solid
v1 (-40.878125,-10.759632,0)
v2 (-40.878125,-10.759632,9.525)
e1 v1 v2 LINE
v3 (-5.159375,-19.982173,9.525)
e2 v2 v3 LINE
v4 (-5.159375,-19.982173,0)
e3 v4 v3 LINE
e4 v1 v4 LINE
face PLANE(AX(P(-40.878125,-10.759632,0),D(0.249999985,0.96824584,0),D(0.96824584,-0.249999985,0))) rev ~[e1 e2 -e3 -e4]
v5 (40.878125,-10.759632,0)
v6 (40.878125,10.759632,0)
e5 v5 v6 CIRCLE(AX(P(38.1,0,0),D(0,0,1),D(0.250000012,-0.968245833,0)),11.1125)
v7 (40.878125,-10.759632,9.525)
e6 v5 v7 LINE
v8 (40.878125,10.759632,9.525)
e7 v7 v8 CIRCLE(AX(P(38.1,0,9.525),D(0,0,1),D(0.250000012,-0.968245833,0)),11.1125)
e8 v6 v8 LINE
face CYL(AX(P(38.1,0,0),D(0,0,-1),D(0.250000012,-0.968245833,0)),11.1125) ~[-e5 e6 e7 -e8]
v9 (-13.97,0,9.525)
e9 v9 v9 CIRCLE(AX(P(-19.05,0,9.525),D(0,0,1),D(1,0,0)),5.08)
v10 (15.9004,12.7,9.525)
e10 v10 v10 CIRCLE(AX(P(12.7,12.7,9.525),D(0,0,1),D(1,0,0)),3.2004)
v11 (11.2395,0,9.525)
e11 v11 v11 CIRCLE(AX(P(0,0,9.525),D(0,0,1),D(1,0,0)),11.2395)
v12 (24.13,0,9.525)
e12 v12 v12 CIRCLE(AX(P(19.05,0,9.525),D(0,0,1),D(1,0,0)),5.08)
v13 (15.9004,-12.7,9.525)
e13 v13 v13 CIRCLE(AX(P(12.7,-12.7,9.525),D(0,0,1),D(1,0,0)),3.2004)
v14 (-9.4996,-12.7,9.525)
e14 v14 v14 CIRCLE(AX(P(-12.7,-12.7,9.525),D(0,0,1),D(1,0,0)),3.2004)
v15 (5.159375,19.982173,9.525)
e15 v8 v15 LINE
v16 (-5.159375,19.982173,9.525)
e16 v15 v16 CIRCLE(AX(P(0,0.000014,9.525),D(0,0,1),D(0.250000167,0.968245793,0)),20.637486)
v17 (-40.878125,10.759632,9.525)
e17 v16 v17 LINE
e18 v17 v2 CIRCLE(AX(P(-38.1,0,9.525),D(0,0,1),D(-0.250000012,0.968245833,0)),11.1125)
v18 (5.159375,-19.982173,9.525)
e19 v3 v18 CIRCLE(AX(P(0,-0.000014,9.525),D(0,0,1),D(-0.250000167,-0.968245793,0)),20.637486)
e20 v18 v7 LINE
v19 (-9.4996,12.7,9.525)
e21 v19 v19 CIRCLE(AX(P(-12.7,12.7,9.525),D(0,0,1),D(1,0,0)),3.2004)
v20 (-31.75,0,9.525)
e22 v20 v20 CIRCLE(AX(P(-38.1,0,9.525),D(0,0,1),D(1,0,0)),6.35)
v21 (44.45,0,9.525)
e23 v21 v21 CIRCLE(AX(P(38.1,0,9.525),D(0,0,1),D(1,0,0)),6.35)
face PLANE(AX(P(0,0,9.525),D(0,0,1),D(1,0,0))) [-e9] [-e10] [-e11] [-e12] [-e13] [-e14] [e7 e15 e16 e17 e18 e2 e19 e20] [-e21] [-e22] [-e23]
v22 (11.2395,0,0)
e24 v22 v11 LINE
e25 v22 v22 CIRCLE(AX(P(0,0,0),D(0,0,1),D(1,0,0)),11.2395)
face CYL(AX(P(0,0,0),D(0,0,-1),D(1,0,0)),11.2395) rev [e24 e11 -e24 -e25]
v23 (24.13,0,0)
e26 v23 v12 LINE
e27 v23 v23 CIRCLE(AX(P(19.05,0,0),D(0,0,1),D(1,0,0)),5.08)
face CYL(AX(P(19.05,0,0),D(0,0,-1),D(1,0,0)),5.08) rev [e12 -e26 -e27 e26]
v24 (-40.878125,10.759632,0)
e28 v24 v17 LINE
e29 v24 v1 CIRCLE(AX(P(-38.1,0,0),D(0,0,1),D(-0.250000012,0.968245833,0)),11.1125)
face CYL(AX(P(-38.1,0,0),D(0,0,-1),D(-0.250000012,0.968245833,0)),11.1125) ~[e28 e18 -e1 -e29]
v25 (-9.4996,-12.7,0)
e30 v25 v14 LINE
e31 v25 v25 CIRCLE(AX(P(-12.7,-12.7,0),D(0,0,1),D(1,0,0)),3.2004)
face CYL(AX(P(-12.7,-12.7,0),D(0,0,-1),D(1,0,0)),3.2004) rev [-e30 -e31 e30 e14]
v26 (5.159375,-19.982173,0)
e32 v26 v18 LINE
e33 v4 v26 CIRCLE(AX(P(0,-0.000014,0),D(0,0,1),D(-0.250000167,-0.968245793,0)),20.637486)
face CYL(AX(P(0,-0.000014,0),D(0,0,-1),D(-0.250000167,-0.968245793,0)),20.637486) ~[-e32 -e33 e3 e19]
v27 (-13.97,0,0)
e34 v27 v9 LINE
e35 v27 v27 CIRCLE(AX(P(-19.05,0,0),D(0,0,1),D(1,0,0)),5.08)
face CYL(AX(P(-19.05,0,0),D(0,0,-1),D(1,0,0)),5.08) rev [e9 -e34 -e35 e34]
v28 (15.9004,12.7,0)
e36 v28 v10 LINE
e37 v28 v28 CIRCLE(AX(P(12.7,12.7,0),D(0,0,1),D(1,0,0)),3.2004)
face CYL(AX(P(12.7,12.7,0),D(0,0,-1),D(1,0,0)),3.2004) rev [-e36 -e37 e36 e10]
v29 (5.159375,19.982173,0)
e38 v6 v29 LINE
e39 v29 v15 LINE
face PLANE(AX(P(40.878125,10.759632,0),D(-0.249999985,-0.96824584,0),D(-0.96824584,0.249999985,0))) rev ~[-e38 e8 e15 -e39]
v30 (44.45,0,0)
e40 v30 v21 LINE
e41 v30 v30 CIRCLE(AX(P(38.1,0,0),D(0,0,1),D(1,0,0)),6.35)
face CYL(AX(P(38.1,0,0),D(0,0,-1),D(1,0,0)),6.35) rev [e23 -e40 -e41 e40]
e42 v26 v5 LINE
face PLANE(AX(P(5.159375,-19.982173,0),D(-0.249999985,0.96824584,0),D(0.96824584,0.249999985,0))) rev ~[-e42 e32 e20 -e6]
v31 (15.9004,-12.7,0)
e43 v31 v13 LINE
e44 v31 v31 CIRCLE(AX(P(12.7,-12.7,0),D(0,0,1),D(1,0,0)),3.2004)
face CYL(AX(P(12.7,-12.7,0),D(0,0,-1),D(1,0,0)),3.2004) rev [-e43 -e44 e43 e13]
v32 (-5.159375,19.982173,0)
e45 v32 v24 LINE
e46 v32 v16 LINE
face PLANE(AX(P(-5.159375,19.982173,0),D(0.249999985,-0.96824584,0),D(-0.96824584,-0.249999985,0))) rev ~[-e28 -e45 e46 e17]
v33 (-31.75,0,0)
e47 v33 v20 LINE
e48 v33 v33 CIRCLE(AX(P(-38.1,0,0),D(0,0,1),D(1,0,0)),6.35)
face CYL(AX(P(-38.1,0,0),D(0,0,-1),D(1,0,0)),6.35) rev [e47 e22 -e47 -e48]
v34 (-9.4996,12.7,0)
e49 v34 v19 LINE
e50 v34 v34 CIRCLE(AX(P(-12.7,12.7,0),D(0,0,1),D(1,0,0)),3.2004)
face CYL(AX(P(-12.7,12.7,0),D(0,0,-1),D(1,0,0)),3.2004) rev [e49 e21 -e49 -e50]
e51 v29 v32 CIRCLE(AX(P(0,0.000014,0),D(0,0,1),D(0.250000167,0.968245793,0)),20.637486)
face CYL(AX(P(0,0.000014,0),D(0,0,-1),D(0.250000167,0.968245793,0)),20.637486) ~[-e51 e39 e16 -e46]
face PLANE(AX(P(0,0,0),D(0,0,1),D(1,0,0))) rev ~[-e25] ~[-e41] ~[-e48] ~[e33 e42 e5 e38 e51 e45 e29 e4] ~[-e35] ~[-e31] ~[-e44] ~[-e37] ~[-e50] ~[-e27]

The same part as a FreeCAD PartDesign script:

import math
import FreeCAD as App
import Part
import Sketcher
Q = App.Units.Quantity

doc = App.newDocument("Part")
params = doc.addObject("Spreadsheet::Sheet", "Params")
for row, (alias, value) in enumerate([
    ("sketch1_diameter", "0.5 in"),
    ("sketch1_diameter2", "0.4 in"),
    ("sketch1_diameter3", "0.252 in"),
    ("sketch1_diameter4", "0.885 in"),
    ("sketch1_radius", "0.4375 in"),
    ("pad1_length", "0.375 in"),
], start=1):
    params.set(f"A{row}", alias)
    params.set(f"B{row}", "=" + value)
    params.setAlias(f"B{row}", alias)

body = doc.addObject("PartDesign::Body", "Body")

# Sketch on XY plane
sketch1 = doc.addObject("Sketcher::SketchObject", "Sketch")
body.addObject(sketch1)
sketch1.AttachmentSupport = (doc.XY_Plane, [""])
sketch1.MapMode = "FlatFace"
sketch1.addGeometry([
    Part.LineSegment(App.Vector(-5.159375, 19.982173, 0), App.Vector(-40.878125, 10.759632, 0)),  # 0
    Part.ArcOfCircle(Part.Circle(App.Vector(-38.1, 0, 0), App.Vector(0, 0, 1), 11.1125), math.radians(104.477513), math.radians(255.522487)),  # 1
    Part.LineSegment(App.Vector(-40.878125, -10.759632, 0), App.Vector(-5.159375, -19.982173, 0)),  # 2
    Part.ArcOfCircle(Part.Circle(App.Vector(0, -0.000014, 0), App.Vector(0, 0, 1), 20.637486), math.radians(-104.477522), math.radians(-75.522478)),  # 3
    Part.LineSegment(App.Vector(5.159375, -19.982173, 0), App.Vector(40.878125, -10.759632, 0)),  # 4
    Part.ArcOfCircle(Part.Circle(App.Vector(38.1, 0, 0), App.Vector(0, 0, 1), 11.1125), math.radians(-75.522487), math.radians(75.522487)),  # 5
    Part.LineSegment(App.Vector(40.878125, 10.759632, 0), App.Vector(5.159375, 19.982173, 0)),  # 6
    Part.ArcOfCircle(Part.Circle(App.Vector(0, 0.000014, 0), App.Vector(0, 0, 1), 20.637486), math.radians(75.522478), math.radians(104.477522)),  # 7
    Part.Circle(App.Vector(-12.7, -12.7, 0), App.Vector(0, 0, 1), 3.2004),  # 8
    Part.Circle(App.Vector(12.7, -12.7, 0), App.Vector(0, 0, 1), 3.2004),  # 9
    Part.Circle(App.Vector(-38.1, 0, 0), App.Vector(0, 0, 1), 6.35),  # 10
    Part.Circle(App.Vector(-19.05, 0, 0), App.Vector(0, 0, 1), 5.08),  # 11
    Part.Circle(App.Vector(-12.7, 12.7, 0), App.Vector(0, 0, 1), 3.2004),  # 12
    Part.Circle(App.Vector(0, 0, 0), App.Vector(0, 0, 1), 11.2395),  # 13
    Part.Circle(App.Vector(19.05, 0, 0), App.Vector(0, 0, 1), 5.08),  # 14
    Part.Circle(App.Vector(38.1, 0, 0), App.Vector(0, 0, 1), 6.35),  # 15
    Part.Circle(App.Vector(12.7, 12.7, 0), App.Vector(0, 0, 1), 3.2004),  # 16
], False)
sketch1.addConstraint([
    Sketcher.Constraint("Tangent", 0, 2, 1, 1),
    Sketcher.Constraint("Tangent", 1, 2, 2, 1),
    Sketcher.Constraint("Tangent", 2, 2, 3, 1),
    Sketcher.Constraint("Tangent", 3, 2, 4, 1),
    Sketcher.Constraint("Tangent", 4, 2, 5, 1),
    Sketcher.Constraint("Tangent", 5, 2, 6, 1),
    Sketcher.Constraint("Tangent", 6, 2, 7, 1),
    Sketcher.Constraint("Tangent", 7, 2, 0, 1),
    Sketcher.Constraint("Coincident", 13, 3, -1, 1),
    Sketcher.Constraint("Coincident", 10, 3, 1, 3),
    Sketcher.Constraint("Coincident", 15, 3, 5, 3),
    Sketcher.Constraint("Equal", 1, 5),
    Sketcher.Constraint("Equal", 3, 7),
    Sketcher.Constraint("Equal", 8, 9),
    Sketcher.Constraint("Equal", 9, 12),
    Sketcher.Constraint("Equal", 11, 14),
    Sketcher.Constraint("Equal", 10, 15),
    Sketcher.Constraint("Equal", 12, 16),
    Sketcher.Constraint("Symmetric", 1, 3, 5, 3, -1, 1),
    Sketcher.Constraint("Symmetric", 3, 3, 7, 3, -1, 1),
    Sketcher.Constraint("Symmetric", 9, 3, 12, 3, -1, 1),
    Sketcher.Constraint("Symmetric", 11, 3, 14, 3, -1, 1),
    Sketcher.Constraint("Symmetric", 8, 3, 16, 3, -1, 1),
    Sketcher.Constraint("Symmetric", 8, 3, 9, 3, -2),
    Sketcher.Constraint("Symmetric", 2, 2, 3, 2, -2),
    Sketcher.Constraint("PointOnObject", 11, 3, -1),
    Sketcher.Constraint("Diameter", 10, Q("0.5 in")),
    Sketcher.Constraint("Diameter", 11, Q("0.4 in")),
    Sketcher.Constraint("Diameter", 8, Q("0.252 in")),
    Sketcher.Constraint("Diameter", 13, Q("0.885 in")),
    Sketcher.Constraint("Radius", 1, Q("0.4375 in")),
    Sketcher.Constraint("DistanceX", 1, 3, 5, 3, Q("3 in")),
    Sketcher.Constraint("DistanceX", 1, 3, 8, 3, Q("1 in")),
    Sketcher.Constraint("DistanceY", 8, 3, 12, 3, Q("1 in")),
    Sketcher.Constraint("DistanceX", 11, 3, -1, 1, Q("0.75 in")),
    Sketcher.Constraint("DistanceX", 0, 2, -1, 1, Q("1.609375 in")),
    Sketcher.Constraint("DistanceX", 2, 2, -1, 1, Q("0.203125 in")),
])
sketch1.setExpression("Constraints[26]", "Params.sketch1_diameter")
sketch1.setExpression("Constraints[27]", "Params.sketch1_diameter2")
sketch1.setExpression("Constraints[28]", "Params.sketch1_diameter3")
sketch1.setExpression("Constraints[29]", "Params.sketch1_diameter4")
sketch1.setExpression("Constraints[30]", "Params.sketch1_radius")
pad1 = doc.addObject("PartDesign::Pad", "Pad")
body.addObject(pad1)
pad1.Profile = sketch1
pad1.setExpression("Length", "Params.pad1_length")

doc.recompute()
